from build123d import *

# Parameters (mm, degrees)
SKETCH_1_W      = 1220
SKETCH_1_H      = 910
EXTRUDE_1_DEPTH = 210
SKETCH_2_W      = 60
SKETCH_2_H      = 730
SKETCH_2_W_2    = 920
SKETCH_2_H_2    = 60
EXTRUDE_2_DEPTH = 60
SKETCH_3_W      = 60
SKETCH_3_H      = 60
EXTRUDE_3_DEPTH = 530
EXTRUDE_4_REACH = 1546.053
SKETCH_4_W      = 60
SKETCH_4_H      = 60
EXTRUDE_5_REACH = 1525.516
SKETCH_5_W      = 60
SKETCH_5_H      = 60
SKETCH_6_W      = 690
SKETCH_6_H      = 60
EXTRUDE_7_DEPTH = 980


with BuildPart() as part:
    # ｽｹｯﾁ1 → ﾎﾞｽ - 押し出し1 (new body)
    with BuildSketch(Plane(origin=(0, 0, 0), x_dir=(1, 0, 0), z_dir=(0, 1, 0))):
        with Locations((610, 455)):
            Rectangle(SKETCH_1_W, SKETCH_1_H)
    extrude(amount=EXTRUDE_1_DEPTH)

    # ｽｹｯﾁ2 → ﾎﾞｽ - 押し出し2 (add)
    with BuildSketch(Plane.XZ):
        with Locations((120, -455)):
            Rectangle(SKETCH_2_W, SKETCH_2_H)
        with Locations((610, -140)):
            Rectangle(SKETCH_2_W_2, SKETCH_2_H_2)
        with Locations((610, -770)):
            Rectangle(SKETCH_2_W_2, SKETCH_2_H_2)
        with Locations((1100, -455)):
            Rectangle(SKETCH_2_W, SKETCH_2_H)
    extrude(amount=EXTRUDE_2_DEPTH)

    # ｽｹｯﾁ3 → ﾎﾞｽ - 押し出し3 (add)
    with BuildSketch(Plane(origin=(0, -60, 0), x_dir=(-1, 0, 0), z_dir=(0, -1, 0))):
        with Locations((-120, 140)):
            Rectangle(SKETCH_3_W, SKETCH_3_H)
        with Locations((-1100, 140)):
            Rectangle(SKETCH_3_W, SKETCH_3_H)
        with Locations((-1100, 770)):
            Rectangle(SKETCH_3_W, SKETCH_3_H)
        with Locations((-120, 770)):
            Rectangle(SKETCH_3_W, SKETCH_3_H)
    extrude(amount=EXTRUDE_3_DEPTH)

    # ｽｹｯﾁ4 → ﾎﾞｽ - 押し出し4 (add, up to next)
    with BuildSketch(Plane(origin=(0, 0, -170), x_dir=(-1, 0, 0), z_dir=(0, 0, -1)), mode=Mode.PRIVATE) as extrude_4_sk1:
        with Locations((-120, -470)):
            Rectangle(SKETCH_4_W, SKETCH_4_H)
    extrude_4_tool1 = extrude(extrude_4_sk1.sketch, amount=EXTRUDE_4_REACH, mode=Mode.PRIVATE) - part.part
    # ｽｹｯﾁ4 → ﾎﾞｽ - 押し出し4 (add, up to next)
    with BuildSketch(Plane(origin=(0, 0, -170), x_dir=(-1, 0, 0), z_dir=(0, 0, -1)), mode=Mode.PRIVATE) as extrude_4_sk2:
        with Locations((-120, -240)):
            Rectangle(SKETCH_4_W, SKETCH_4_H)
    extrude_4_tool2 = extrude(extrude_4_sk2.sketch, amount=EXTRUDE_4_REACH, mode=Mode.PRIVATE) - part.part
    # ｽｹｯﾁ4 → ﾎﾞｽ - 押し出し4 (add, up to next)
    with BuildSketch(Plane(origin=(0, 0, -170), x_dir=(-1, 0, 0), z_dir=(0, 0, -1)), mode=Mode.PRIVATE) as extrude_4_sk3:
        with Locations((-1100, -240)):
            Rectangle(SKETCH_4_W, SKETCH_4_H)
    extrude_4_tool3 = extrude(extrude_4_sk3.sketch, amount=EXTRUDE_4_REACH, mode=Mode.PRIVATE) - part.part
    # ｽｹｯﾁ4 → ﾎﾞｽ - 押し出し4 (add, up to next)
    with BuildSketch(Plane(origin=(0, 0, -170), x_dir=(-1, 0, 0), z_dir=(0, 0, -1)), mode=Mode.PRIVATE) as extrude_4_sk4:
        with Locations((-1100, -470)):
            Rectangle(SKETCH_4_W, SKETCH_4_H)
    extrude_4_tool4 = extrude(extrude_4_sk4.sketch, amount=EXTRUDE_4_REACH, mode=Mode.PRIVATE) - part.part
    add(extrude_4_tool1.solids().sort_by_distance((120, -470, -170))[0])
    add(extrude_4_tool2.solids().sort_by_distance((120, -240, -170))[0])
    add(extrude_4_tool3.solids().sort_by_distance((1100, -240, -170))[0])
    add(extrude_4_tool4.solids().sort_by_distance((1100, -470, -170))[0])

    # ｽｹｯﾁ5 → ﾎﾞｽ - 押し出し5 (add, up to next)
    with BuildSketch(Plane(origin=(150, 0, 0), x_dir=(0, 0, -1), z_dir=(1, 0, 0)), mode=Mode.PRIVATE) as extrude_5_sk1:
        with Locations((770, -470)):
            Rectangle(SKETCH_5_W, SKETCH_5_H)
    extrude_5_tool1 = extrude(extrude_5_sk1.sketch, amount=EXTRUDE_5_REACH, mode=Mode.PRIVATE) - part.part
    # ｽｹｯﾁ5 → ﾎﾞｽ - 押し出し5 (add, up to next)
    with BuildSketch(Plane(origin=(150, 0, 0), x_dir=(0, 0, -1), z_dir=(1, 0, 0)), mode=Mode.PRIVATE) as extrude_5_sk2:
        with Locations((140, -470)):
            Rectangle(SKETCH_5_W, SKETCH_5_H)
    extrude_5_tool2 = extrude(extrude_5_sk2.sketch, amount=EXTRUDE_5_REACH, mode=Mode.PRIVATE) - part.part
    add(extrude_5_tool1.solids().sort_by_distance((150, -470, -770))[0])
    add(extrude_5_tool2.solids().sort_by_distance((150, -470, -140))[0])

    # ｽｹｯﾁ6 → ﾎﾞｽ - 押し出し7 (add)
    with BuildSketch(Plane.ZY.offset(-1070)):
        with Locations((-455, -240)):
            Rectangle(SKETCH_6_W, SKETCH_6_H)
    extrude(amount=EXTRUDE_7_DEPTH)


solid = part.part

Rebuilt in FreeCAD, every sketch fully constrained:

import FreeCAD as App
import Part
import Sketcher
from FreeCAD import Vector


def add_polygon(sketch, points):
    """Adds a closed chain of lines whose ends are joined by coincident constraints."""
    first, n = sketch.GeometryCount, len(points)
    for a, b in zip(points, points[1:] + points[:1]):
        sketch.addGeometry(Part.LineSegment(App.Vector(*a, 0), App.Vector(*b, 0)), False)
    for i in range(n):
        sketch.addConstraint(Sketcher.Constraint("Coincident", first + i, 2, first + (i + 1) % n, 1))

doc = App.newDocument("Part")
body = doc.addObject("PartDesign::Body", "Body")

sketch1 = body.newObject("Sketcher::SketchObject", "Sketch")
sketch1.AttachmentSupport = (doc.getObject("XZ_Plane"), [""])
sketch1.MapMode = "FlatFace"
add_polygon(sketch1, [(0, -910), (0, 0), (1220, 0), (1220, -910)])
sketch1.addConstraint([
    Sketcher.Constraint("Vertical", 0),
    Sketcher.Constraint("Horizontal", 1),
    Sketcher.Constraint("Vertical", 2),
    Sketcher.Constraint("Horizontal", 3),
    Sketcher.Constraint("Coincident", 0, 2, -1, 1),
    Sketcher.Constraint("DistanceX", 1, 1, 1, 2, 1220.0),
    Sketcher.Constraint("DistanceY", 0, 1, 0, 2, 910.0),
])
pad1 = body.newObject("PartDesign::Pad", "Pad")
pad1.Profile = sketch1
pad1.Length = 210
pad1.Reversed = True

sketch2 = body.newObject("Sketcher::SketchObject", "Sketch001")
sketch2.AttachmentSupport = (doc.getObject("XZ_Plane"), [""])
sketch2.MapMode = "FlatFace"
add_polygon(sketch2, [(90, -90), (90, -820), (150, -820), (150, -800), (1070, -800), (1070, -820), (1130, -820), (1130, -90), (1070, -90), (1070, -110), (150, -110), (150, -90)])
add_polygon(sketch2, [(1070, -740), (150, -740), (150, -170), (1070, -170)])
sketch2.addConstraint([
    Sketcher.Constraint("Vertical", 0),
    Sketcher.Constraint("Horizontal", 1),
    Sketcher.Constraint("Vertical", 2),
    Sketcher.Constraint("Horizontal", 3),
    Sketcher.Constraint("Vertical", 4),
    Sketcher.Constraint("Horizontal", 5),
    Sketcher.Constraint("Vertical", 6),
    Sketcher.Constraint("Horizontal", 7),
    Sketcher.Constraint("Vertical", 8),
    Sketcher.Constraint("Horizontal", 9),
    Sketcher.Constraint("Vertical", 10),
    Sketcher.Constraint("Horizontal", 11),
    Sketcher.Constraint("Horizontal", 12),
    Sketcher.Constraint("Vertical", 13),
    Sketcher.Constraint("Horizontal", 14),
    Sketcher.Constraint("Vertical", 15),
    Sketcher.Constraint("Horizontal", 1, 2, 4, 2),
    Sketcher.Constraint("Horizontal", 7, 2, 10, 2),
    Sketcher.Constraint("Vertical", 4, 2, 7, 2),
    Sketcher.Constraint("Vertical", 2, 2, 9, 2),
    Sketcher.Constraint("Vertical", 10, 2, 12, 2),
    Sketcher.Constraint("Vertical", 8, 2, 14, 2),
    Sketcher.Constraint("Equal", 1, 5),
    Sketcher.Constraint("Equal", 4, 8),
    Sketcher.Constraint("DistanceX", 1, 1, 1, 2, 60.0),
    Sketcher.Constraint("DistanceX", 3, 1, 3, 2, 920.0),
    Sketcher.Constraint("DistanceY", 0, 2, 0, 1, 730.0),
    Sketcher.Constraint("DistanceY", 2, 1, 2, 2, 20.0),
    Sketcher.Constraint("DistanceY", 13, 1, 13, 2, 570.0),
    Sketcher.Constraint("DistanceX", -1, 1, 0, 2, 90.0),
    Sketcher.Constraint("DistanceY", 0, 2, -1, 1, 820.0),
    Sketcher.Constraint("DistanceY", 12, 2, -1, 1, 740.0),
])
pad2 = body.newObject("PartDesign::Pad", "Pad001")
pad2.Profile = sketch2
pad2.Length = 60

sketch3 = body.newObject("Sketcher::SketchObject", "Sketch002")
sketch3.AttachmentSupport = (doc.getObject("XZ_Plane"), [""])
sketch3.MapMode = "FlatFace"
sketch3.AttachmentOffset = App.Placement(Vector(0, 0, 60), App.Rotation())
add_polygon(sketch3, [(150, -170), (150, -110), (90, -110), (90, -170)])
add_polygon(sketch3, [(1130, -170), (1130, -110), (1070, -110), (1070, -170)])
add_polygon(sketch3, [(1130, -800), (1130, -740), (1070, -740), (1070, -800)])
add_polygon(sketch3, [(150, -800), (150, -740), (90, -740), (90, -800)])
sketch3.addConstraint([
    Sketcher.Constraint("Vertical", 0),
    Sketcher.Constraint("Horizontal", 1),
    Sketcher.Constraint("Vertical", 2),
    Sketcher.Constraint("Horizontal", 3),
    Sketcher.Constraint("Vertical", 4),
    Sketcher.Constraint("Horizontal", 5),
    Sketcher.Constraint("Vertical", 6),
    Sketcher.Constraint("Horizontal", 7),
    Sketcher.Constraint("Vertical", 8),
    Sketcher.Constraint("Horizontal", 9),
    Sketcher.Constraint("Vertical", 10),
    Sketcher.Constraint("Horizontal", 11),
    Sketcher.Constraint("Vertical", 12),
    Sketcher.Constraint("Horizontal", 13),
    Sketcher.Constraint("Vertical", 14),
    Sketcher.Constraint("Horizontal", 15),
    Sketcher.Constraint("Horizontal", 1, 2, 4, 2),
    Sketcher.Constraint("Horizontal", 3, 2, 6, 2),
    Sketcher.Constraint("Horizontal", 9, 2, 12, 2),
    Sketcher.Constraint("Horizontal", 11, 2, 14, 2),
    Sketcher.Constraint("Vertical", 7, 2, 8, 2),
    Sketcher.Constraint("Vertical", 6, 2, 9, 2),
    Sketcher.Constraint("Vertical", 3, 2, 12, 2),
    Sketcher.Constraint("Vertical", 2, 2, 13, 2),
    Sketcher.Constraint("Equal", 3, 5),
    Sketcher.Constraint("Equal", 15, 0),
    Sketcher.Constraint("Equal", 6, 8),
    Sketcher.Constraint("DistanceX", 1, 2, 1, 1, 60.0),
    Sketcher.Constraint("DistanceX", -1, 1, 0, 2, 150.0),
    Sketcher.Constraint("DistanceY", 0, 2, -1, 1, 110.0),
    Sketcher.Constraint("DistanceX", -1, 1, 4, 2, 1130.0),
    Sketcher.Constraint("DistanceY", 8, 2, -1, 1, 740.0),
])
pad3 = body.newObject("PartDesign::Pad", "Pad002")
pad3.Profile = sketch3
pad3.Length = 530

sketch4 = body.newObject("Sketcher::SketchObject", "Sketch003")
sketch4.AttachmentSupport = (doc.getObject("XY_Plane"), [""])
sketch4.MapMode = "FlatFace"
sketch4.AttachmentOffset = App.Placement(Vector(0, 0, -170), App.Rotation())
add_polygon(sketch4, [(150, -440), (150, -500), (90, -500), (90, -440)])
sketch4.addConstraint([
    Sketcher.Constraint("Vertical", 0),
    Sketcher.Constraint("Horizontal", 1),
    Sketcher.Constraint("Vertical", 2),
    Sketcher.Constraint("Horizontal", 3),
    Sketcher.Constraint("Equal", 3, 0),
    Sketcher.Constraint("DistanceX", 1, 2, 1, 1, 60.0),
    Sketcher.Constraint("DistanceX", -1, 1, 0, 2, 150.0),
    Sketcher.Constraint("DistanceY", 0, 2, -1, 1, 500.0),
])
pad4 = body.newObject("PartDesign::Pad", "Pad003")
pad4.Profile = sketch4
pad4.Type = "UpToFirst"
pad4.Reversed = True

sketch5 = body.newObject("Sketcher::SketchObject", "Sketch004")
sketch5.AttachmentSupport = (doc.getObject("XY_Plane"), [""])
sketch5.MapMode = "FlatFace"
sketch5.AttachmentOffset = App.Placement(Vector(0, 0, -170), App.Rotation())
add_polygon(sketch5, [(150, -210), (150, -270), (90, -270), (90, -210)])
sketch5.addConstraint([
    Sketcher.Constraint("Vertical", 0),
    Sketcher.Constraint("Horizontal", 1),
    Sketcher.Constraint("Vertical", 2),
    Sketcher.Constraint("Horizontal", 3),
    Sketcher.Constraint("Equal", 3, 0),
    Sketcher.Constraint("DistanceX", 1, 2, 1, 1, 60.0),
    Sketcher.Constraint("DistanceX", -1, 1, 0, 2, 150.0),
    Sketcher.Constraint("DistanceY", 0, 2, -1, 1, 270.0),
])
pad5 = body.newObject("PartDesign::Pad", "Pad004")
pad5.Profile = sketch5
pad5.Type = "UpToFirst"
pad5.Reversed = True

sketch6 = body.newObject("Sketcher::SketchObject", "Sketch005")
sketch6.AttachmentSupport = (doc.getObject("XY_Plane"), [""])
sketch6.MapMode = "FlatFace"
sketch6.AttachmentOffset = App.Placement(Vector(0, 0, -170), App.Rotation())
add_polygon(sketch6, [(1130, -210), (1130, -270), (1070, -270), (1070, -210)])
sketch6.addConstraint([
    Sketcher.Constraint("Vertical", 0),
    Sketcher.Constraint("Horizontal", 1),
    Sketcher.Constraint("Vertical", 2),
    Sketcher.Constraint("Horizontal", 3),
    Sketcher.Constraint("Equal", 3, 0),
    Sketcher.Constraint("DistanceX", 1, 2, 1, 1, 60.0),
    Sketcher.Constraint("DistanceX", -1, 1, 0, 2, 1130.0),
    Sketcher.Constraint("DistanceY", 0, 2, -1, 1, 270.0),
])
pad6 = body.newObject("PartDesign::Pad", "Pad005")
pad6.Profile = sketch6
pad6.Type = "UpToFirst"
pad6.Reversed = True

sketch7 = body.newObject("Sketcher::SketchObject", "Sketch006")
sketch7.AttachmentSupport = (doc.getObject("XY_Plane"), [""])
sketch7.MapMode = "FlatFace"
sketch7.AttachmentOffset = App.Placement(Vector(0, 0, -170), App.Rotation())
add_polygon(sketch7, [(1130, -440), (1130, -500), (1070, -500), (1070, -440)])
sketch7.addConstraint([
    Sketcher.Constraint("Vertical", 0),
    Sketcher.Constraint("Horizontal", 1),
    Sketcher.Constraint("Vertical", 2),
    Sketcher.Constraint("Horizontal", 3),
    Sketcher.Constraint("Equal", 3, 0),
    Sketcher.Constraint("DistanceX", 1, 2, 1, 1, 60.0),
    Sketcher.Constraint("DistanceX", -1, 1, 0, 2, 1130.0),
    Sketcher.Constraint("DistanceY", 0, 2, -1, 1, 500.0),
])
pad7 = body.newObject("PartDesign::Pad", "Pad006")
pad7.Profile = sketch7
pad7.Type = "UpToFirst"
pad7.Reversed = True

sketch8 = body.newObject("Sketcher::SketchObject", "Sketch007")
sketch8.AttachmentSupport = (doc.getObject("YZ_Plane"), [""])
sketch8.MapMode = "FlatFace"
sketch8.AttachmentOffset = App.Placement(Vector(0, 0, 150), App.Rotation())
add_polygon(sketch8, [(-440, -740), (-500, -740), (-500, -800), (-440, -800)])
sketch8.addConstraint([
    Sketcher.Constraint("Horizontal", 0),
    Sketcher.Constraint("Vertical", 1),
    Sketcher.Constraint("Horizontal", 2),
    Sketcher.Constraint("Vertical", 3),
    Sketcher.Constraint("Equal", 2, 1),
    Sketcher.Constraint("DistanceX", 0, 2, 0, 1, 60.0),
    Sketcher.Constraint("DistanceX", 0, 2, -1, 1, 500.0),
    Sketcher.Constraint("DistanceY", 0, 2, -1, 1, 740.0),
])
pad8 = body.newObject("PartDesign::Pad", "Pad007")
pad8.Profile = sketch8
pad8.Type = "UpToFirst"

sketch9 = body.newObject("Sketcher::SketchObject", "Sketch008")
sketch9.AttachmentSupport = (doc.getObject("YZ_Plane"), [""])
sketch9.MapMode = "FlatFace"
sketch9.AttachmentOffset = App.Placement(Vector(0, 0, 150), App.Rotation())
add_polygon(sketch9, [(-440, -110), (-500, -110), (-500, -170), (-440, -170)])
sketch9.addConstraint([
    Sketcher.Constraint("Horizontal", 0),
    Sketcher.Constraint("Vertical", 1),
    Sketcher.Constraint("Horizontal", 2),
    Sketcher.Constraint("Vertical", 3),
    Sketcher.Constraint("Equal", 2, 1),
    Sketcher.Constraint("DistanceX", 0, 2, 0, 1, 60.0),
    Sketcher.Constraint("DistanceX", 0, 2, -1, 1, 500.0),
    Sketcher.Constraint("DistanceY", 0, 2, -1, 1, 110.0),
])
pad9 = body.newObject("PartDesign::Pad", "Pad008")
pad9.Profile = sketch9
pad9.Type = "UpToFirst"

sketch10 = body.newObject("Sketcher::SketchObject", "Sketch009")
sketch10.AttachmentSupport = (doc.getObject("YZ_Plane"), [""])
sketch10.MapMode = "FlatFace"
sketch10.AttachmentOffset = App.Placement(Vector(0, 0, 1070), App.Rotation())
add_polygon(sketch10, [(-210, -800), (-270, -800), (-270, -110), (-210, -110)])
sketch10.addConstraint([
    Sketcher.Constraint("Horizontal", 0),
    Sketcher.Constraint("Vertical", 1),
    Sketcher.Constraint("Horizontal", 2),
    Sketcher.Constraint("Vertical", 3),
    Sketcher.Constraint("DistanceX", 0, 2, 0, 1, 60.0),
    Sketcher.Constraint("DistanceY", 1, 1, 1, 2, 690.0),
    Sketcher.Constraint("DistanceX", 0, 2, -1, 1, 270.0),
    Sketcher.Constraint("DistanceY", 0, 2, -1, 1, 800.0),
])
pad10 = body.newObject("PartDesign::Pad", "Pad009")
pad10.Profile = sketch10
pad10.Length = 980
pad10.Reversed = True

doc.recompute()
